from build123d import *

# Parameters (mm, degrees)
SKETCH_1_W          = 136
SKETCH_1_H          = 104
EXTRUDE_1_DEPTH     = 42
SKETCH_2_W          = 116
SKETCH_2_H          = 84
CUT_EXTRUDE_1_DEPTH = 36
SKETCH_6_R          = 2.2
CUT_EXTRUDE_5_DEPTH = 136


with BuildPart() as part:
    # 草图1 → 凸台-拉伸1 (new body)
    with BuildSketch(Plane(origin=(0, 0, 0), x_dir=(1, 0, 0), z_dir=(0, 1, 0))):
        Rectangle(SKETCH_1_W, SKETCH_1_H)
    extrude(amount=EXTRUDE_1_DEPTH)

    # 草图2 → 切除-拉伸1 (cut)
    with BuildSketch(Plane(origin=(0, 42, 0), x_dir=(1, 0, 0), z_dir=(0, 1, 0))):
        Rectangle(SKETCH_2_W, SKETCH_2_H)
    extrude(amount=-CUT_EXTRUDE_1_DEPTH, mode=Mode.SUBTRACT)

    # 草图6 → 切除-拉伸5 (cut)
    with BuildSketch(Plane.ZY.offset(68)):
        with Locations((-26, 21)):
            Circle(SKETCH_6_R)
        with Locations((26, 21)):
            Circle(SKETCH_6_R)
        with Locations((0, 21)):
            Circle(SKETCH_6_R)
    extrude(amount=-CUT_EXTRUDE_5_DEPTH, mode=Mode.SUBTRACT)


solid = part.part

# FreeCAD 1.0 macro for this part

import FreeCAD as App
import Part
import Sketcher

V = App.Vector


def add_polygon(sketch, points):
    """Adds a closed chain of lines whose ends are joined by coincident constraints."""
    first, n = sketch.GeometryCount, len(points)
    for a, b in zip(points, points[1:] + points[:1]):
        sketch.addGeometry(Part.LineSegment(App.Vector(*a, 0), App.Vector(*b, 0)), False)
    for i in range(n):
        sketch.addConstraint(Sketcher.Constraint("Coincident", first + i, 2, first + (i + 1) % n, 1))

doc = App.newDocument("Part")
body = doc.addObject("PartDesign::Body", "Body")

# Sketch on XZ plane
sketch1 = doc.addObject("Sketcher::SketchObject", "Sketch")
body.addObject(sketch1)
sketch1.AttachmentSupport = (doc.XZ_Plane, [""])
sketch1.MapMode = "FlatFace"
add_polygon(sketch1, [(-68, -52), (-68, 52), (68, 52), (68, -52)])  # lines 0-3
sketch1.addConstraint(Sketcher.Constraint("Vertical", 0))
sketch1.addConstraint(Sketcher.Constraint("Horizontal", 1))
sketch1.addConstraint(Sketcher.Constraint("Vertical", 2))
sketch1.addConstraint(Sketcher.Constraint("Horizontal", 3))
sketch1.addConstraint(Sketcher.Constraint("Symmetric", 0, 2, 2, 2, -1, 1))
sketch1.addConstraint(Sketcher.Constraint("DistanceX", 1, 1, 1, 2, 136.0))
sketch1.addConstraint(Sketcher.Constraint("DistanceY", 0, 1, 0, 2, 104.0))
pad1 = doc.addObject("PartDesign::Pad", "Pad")
body.addObject(pad1)
pad1.Profile = sketch1
pad1.Length = 42
pad1.Reversed = True

# Sketch on XZ plane
sketch2 = doc.addObject("Sketcher::SketchObject", "Sketch001")
body.addObject(sketch2)
sketch2.AttachmentSupport = (doc.XZ_Plane, [""])
sketch2.MapMode = "FlatFace"
sketch2.AttachmentOffset = App.Placement(V(0, 0, -42), App.Rotation())
add_polygon(sketch2, [(-58, -42), (-58, 42), (58, 42), (58, -42)])  # lines 0-3
sketch2.addConstraint(Sketcher.Constraint("Vertical", 0))
sketch2.addConstraint(Sketcher.Constraint("Horizontal", 1))
sketch2.addConstraint(Sketcher.Constraint("Vertical", 2))
sketch2.addConstraint(Sketcher.Constraint("Horizontal", 3))
sketch2.addConstraint(Sketcher.Constraint("Symmetric", 0, 2, 2, 2, -1, 1))
sketch2.addConstraint(Sketcher.Constraint("DistanceX", 1, 1, 1, 2, 116.0))
sketch2.addConstraint(Sketcher.Constraint("DistanceY", 0, 1, 0, 2, 84.0))
pocket1 = doc.addObject("PartDesign::Pocket", "Pocket")
body.addObject(pocket1)
pocket1.Profile = sketch2
pocket1.Length = 36
pocket1.Reversed = True

# Sketch on YZ plane
sketch3 = doc.addObject("Sketcher::SketchObject", "Sketch002")
body.addObject(sketch3)
sketch3.AttachmentSupport = (doc.YZ_Plane, [""])
sketch3.MapMode = "FlatFace"
sketch3.AttachmentOffset = App.Placement(V(0, 0, -68), App.Rotation())
sketch3.addGeometry(Part.Circle(V(21, -26, 0), V(0, 0, 1), 2.2), False)
sketch3.addGeometry(Part.Circle(V(21, 26, 0), V(0, 0, 1), 2.2), False)
sketch3.addGeometry(Part.Circle(V(21, 0, 0), V(0, 0, 1), 2.2), False)
sketch3.addConstraint(Sketcher.Constraint("Equal", 0, 1))
sketch3.addConstraint(Sketcher.Constraint("Equal", 1, 2))
sketch3.addConstraint(Sketcher.Constraint("Symmetric", 0, 3, 1, 3, -1))
sketch3.addConstraint(Sketcher.Constraint("PointOnObject", 2, 3, -1))
sketch3.addConstraint(Sketcher.Constraint("Vertical", 1, 3, 2, 3))
sketch3.addConstraint(Sketcher.Constraint("Diameter", 0, 4.4))
sketch3.addConstraint(Sketcher.Constraint("DistanceX", -1, 1, 0, 3, 21.0))
sketch3.addConstraint(Sketcher.Constraint("DistanceY", 0, 3, -1, 1, 26.0))
pocket2 = doc.addObject("PartDesign::Pocket", "Pocket001")
body.addObject(pocket2)
pocket2.Profile = sketch3
pocket2.Length = 136
pocket2.Reversed = True

doc.recompute()
